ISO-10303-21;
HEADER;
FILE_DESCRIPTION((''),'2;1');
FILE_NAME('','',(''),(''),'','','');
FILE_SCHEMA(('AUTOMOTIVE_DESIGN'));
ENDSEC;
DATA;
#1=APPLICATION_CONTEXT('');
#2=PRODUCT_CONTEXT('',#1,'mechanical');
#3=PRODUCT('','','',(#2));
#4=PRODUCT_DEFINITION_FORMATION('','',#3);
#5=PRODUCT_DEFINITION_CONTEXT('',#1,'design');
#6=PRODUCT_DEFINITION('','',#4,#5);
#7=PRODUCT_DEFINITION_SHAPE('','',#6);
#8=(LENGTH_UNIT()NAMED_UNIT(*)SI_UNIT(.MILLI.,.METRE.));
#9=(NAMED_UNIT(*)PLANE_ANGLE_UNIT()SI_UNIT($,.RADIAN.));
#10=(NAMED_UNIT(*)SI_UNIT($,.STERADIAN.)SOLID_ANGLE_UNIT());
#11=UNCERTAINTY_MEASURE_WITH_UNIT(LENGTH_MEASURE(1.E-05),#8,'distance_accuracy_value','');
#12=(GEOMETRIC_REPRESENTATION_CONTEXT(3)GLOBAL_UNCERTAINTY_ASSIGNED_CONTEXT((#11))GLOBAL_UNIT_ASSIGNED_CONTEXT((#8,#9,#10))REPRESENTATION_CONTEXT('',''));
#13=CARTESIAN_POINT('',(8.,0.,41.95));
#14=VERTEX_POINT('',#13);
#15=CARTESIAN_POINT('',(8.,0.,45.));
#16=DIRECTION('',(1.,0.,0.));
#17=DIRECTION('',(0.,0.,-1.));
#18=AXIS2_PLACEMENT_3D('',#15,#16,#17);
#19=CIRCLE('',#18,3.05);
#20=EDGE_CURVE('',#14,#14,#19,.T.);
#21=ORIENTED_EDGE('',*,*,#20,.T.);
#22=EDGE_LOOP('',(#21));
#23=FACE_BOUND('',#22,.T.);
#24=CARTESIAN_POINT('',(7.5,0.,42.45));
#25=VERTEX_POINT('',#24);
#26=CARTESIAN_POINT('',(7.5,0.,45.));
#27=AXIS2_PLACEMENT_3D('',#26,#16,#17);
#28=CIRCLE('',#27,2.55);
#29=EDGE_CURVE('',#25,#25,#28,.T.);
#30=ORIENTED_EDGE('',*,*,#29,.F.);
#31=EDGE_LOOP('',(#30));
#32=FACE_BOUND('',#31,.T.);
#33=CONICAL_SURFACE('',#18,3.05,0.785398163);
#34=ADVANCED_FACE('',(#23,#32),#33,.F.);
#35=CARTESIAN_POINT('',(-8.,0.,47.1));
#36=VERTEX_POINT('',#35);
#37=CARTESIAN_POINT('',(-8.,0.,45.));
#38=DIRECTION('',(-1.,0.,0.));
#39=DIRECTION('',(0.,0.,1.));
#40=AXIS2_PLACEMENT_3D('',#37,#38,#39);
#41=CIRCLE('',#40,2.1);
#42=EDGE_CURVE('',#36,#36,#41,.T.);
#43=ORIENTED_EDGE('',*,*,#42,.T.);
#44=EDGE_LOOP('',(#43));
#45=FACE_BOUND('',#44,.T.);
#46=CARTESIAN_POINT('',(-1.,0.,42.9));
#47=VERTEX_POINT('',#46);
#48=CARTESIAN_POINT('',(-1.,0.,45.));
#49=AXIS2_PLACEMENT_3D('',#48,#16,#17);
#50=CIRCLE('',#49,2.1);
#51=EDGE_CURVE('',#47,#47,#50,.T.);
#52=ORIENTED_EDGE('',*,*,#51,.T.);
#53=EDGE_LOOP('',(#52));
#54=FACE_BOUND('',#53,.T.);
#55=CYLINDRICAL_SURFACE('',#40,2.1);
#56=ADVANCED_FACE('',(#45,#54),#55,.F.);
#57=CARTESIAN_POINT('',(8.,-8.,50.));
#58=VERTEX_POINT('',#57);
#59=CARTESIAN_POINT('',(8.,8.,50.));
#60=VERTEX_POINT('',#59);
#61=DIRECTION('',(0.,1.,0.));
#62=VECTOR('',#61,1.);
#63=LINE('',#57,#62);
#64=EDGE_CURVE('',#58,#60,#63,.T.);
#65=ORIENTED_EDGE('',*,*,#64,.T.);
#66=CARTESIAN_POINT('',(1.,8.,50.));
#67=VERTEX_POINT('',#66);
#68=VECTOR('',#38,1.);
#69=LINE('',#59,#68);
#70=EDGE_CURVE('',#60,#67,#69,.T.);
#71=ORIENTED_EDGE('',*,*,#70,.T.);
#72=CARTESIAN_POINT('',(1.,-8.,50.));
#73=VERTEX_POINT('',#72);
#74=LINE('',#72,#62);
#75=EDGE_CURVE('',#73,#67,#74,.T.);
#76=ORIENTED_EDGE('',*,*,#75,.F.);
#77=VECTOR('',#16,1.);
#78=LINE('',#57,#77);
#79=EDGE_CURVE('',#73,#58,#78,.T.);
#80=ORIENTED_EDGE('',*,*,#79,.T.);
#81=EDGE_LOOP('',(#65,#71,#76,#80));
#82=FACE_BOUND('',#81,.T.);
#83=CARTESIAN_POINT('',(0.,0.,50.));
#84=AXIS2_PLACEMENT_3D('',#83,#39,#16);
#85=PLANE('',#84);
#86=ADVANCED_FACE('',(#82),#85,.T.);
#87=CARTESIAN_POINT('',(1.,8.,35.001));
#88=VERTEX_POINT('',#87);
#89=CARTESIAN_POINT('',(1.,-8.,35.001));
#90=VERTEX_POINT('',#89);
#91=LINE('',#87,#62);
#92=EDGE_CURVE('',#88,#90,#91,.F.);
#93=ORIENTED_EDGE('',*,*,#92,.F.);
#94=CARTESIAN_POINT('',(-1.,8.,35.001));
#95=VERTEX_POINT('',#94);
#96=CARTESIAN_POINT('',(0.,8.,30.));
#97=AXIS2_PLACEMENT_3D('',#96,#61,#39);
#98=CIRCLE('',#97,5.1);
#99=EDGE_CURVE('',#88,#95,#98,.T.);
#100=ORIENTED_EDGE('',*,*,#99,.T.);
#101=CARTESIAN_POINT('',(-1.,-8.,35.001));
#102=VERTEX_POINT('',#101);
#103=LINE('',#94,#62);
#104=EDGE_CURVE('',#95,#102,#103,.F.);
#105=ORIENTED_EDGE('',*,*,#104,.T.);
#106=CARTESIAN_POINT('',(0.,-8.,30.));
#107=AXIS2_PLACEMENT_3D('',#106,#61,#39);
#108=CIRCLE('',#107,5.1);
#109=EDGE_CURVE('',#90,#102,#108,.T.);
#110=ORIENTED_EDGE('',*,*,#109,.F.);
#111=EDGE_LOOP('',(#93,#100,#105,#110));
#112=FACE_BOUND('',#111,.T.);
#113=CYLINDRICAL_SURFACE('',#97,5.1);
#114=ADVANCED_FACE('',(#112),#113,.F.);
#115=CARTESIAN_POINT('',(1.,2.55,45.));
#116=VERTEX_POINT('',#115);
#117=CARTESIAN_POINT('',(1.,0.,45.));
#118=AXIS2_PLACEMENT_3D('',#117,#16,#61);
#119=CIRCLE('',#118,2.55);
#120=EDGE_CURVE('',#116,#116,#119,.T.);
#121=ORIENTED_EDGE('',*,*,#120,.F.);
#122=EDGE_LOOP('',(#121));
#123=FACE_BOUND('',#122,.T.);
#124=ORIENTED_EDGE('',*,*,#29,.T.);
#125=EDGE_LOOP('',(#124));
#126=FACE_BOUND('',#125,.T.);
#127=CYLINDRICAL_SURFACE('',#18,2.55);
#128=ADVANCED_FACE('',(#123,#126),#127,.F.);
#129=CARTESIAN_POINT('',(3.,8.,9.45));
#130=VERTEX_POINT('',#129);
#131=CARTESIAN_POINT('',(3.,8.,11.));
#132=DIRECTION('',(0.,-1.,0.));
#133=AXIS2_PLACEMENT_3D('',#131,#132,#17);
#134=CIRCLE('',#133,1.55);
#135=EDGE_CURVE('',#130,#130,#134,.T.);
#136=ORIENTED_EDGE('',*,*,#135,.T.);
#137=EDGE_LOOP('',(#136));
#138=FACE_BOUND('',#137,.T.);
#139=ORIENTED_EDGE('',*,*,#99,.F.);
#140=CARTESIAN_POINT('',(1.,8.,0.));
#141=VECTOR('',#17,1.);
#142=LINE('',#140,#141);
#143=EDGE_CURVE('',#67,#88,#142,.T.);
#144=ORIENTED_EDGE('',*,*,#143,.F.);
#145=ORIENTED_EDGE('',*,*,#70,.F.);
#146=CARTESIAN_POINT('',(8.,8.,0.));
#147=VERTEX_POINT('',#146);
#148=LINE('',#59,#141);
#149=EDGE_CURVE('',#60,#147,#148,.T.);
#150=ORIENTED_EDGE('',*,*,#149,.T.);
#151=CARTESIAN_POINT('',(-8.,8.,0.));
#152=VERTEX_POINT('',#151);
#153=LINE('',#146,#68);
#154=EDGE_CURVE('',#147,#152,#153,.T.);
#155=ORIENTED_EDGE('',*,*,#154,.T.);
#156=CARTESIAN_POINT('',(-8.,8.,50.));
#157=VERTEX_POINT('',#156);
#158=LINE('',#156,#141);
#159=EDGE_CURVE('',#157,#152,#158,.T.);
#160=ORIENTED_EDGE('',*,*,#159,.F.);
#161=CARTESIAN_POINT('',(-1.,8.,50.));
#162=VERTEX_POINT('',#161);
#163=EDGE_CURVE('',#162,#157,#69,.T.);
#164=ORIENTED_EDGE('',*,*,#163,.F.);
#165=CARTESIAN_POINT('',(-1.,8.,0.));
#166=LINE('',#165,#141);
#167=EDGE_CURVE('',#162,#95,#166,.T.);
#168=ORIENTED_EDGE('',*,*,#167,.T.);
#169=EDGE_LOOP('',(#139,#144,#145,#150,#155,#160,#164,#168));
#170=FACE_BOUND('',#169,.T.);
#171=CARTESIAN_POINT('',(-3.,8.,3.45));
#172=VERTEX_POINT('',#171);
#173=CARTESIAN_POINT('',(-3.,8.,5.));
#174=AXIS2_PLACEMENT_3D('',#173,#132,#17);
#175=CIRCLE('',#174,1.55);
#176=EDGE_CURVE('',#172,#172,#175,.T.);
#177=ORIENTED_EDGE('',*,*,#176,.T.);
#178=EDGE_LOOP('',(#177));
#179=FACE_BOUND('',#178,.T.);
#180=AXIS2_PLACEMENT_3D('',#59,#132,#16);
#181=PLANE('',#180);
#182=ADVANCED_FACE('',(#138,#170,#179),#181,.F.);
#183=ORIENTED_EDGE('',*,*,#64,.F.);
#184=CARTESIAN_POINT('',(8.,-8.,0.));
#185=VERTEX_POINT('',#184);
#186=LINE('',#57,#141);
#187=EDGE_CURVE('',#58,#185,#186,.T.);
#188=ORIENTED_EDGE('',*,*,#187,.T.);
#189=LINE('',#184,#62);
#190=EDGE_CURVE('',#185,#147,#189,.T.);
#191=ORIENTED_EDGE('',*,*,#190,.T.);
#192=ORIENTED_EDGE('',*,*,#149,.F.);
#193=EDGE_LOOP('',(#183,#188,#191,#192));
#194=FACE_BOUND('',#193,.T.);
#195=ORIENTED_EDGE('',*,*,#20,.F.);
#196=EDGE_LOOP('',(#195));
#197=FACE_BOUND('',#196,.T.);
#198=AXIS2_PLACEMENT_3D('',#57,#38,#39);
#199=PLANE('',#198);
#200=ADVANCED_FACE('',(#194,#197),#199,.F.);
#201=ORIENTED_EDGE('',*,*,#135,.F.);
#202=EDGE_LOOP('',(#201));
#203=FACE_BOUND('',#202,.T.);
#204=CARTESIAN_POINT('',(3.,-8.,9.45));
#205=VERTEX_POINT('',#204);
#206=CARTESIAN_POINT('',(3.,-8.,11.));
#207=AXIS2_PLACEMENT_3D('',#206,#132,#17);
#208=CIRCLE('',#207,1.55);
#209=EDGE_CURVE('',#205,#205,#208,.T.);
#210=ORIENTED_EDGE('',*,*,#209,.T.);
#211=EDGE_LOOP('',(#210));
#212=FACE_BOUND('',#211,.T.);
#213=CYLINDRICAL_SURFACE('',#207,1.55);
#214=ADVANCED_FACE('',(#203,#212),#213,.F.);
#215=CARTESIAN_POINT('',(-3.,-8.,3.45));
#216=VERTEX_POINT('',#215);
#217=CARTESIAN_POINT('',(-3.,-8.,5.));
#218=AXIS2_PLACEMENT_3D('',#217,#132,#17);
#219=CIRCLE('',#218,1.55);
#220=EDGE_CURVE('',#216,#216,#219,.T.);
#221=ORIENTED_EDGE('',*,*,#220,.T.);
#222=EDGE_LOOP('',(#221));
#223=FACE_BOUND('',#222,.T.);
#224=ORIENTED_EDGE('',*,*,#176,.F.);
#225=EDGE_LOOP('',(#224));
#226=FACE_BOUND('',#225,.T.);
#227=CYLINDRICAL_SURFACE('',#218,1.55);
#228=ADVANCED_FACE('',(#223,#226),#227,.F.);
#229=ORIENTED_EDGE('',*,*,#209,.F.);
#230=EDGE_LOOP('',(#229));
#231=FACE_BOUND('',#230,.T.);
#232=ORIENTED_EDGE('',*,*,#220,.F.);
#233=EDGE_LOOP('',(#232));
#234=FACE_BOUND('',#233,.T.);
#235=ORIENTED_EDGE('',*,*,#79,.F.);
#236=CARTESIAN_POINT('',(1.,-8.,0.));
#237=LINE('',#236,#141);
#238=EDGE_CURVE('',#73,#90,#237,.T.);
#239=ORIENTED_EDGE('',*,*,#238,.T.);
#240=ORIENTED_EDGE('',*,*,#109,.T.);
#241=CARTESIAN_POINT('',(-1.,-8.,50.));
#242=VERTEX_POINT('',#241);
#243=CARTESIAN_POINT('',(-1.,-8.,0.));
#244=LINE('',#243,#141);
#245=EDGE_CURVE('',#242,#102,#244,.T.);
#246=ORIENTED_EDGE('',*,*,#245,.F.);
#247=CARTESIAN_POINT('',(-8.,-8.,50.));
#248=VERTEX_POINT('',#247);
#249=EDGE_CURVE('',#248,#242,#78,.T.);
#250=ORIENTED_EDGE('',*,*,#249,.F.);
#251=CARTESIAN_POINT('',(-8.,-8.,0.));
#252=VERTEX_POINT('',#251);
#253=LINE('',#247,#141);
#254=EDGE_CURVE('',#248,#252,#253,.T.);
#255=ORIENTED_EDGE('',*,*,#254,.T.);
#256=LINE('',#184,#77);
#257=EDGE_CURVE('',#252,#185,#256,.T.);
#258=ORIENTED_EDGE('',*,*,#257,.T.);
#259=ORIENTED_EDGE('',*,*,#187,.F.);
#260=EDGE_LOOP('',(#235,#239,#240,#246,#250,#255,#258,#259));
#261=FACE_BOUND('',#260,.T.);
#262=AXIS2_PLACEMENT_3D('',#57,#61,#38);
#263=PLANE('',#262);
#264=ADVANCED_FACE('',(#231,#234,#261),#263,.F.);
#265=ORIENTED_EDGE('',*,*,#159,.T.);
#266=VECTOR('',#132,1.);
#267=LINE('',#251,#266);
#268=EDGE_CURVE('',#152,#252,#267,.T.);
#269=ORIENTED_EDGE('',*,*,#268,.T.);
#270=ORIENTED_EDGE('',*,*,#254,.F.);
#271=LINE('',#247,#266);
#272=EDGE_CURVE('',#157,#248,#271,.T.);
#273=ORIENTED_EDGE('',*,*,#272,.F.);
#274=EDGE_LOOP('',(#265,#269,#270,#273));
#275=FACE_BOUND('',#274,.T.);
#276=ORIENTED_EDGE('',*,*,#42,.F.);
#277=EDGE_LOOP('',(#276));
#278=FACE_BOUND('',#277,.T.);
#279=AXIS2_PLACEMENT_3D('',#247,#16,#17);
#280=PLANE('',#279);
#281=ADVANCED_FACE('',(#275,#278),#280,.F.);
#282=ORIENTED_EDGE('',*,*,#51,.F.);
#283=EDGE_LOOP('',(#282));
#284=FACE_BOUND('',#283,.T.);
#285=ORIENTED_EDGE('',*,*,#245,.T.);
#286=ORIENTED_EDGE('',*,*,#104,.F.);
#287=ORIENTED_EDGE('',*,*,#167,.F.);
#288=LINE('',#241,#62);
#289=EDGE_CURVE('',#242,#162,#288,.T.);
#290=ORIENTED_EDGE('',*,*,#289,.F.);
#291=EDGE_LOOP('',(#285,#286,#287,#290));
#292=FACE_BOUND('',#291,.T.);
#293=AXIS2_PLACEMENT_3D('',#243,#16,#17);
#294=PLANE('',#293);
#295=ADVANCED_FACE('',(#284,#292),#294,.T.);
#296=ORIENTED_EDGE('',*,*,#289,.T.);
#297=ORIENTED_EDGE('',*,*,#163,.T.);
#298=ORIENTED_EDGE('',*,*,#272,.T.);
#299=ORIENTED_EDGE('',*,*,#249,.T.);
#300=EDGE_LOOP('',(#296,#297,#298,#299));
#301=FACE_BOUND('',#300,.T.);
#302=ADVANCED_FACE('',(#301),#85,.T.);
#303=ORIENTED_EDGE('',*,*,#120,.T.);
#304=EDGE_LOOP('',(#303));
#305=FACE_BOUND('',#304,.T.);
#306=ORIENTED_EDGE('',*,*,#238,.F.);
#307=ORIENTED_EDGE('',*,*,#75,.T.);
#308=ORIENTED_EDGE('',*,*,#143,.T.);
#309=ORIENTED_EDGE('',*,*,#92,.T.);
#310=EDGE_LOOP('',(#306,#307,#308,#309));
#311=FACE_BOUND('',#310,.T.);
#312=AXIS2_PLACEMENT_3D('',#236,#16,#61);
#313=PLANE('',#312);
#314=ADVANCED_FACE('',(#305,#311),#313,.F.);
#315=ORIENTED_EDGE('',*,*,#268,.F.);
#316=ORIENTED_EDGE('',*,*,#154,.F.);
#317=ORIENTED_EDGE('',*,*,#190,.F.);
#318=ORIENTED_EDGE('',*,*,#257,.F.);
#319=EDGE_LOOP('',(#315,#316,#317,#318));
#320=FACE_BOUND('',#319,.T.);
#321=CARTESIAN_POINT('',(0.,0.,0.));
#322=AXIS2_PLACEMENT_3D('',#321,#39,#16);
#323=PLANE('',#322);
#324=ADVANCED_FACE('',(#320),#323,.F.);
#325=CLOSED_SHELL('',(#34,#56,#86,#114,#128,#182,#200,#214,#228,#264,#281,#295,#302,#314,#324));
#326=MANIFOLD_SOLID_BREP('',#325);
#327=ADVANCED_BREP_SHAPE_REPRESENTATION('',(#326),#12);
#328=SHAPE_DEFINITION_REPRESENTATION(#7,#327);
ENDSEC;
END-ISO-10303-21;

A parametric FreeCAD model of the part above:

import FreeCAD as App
import Part
import Sketcher
from FreeCAD import Vector
Q = App.Units.Quantity

doc = App.newDocument("Part")
body = doc.addObject("PartDesign::Body", "Body")

sketch1 = body.newObject("Sketcher::SketchObject", "Sketch")
sketch1.AttachmentSupport = (doc.getObject("XY_Plane"), [""])
sketch1.MapMode = "FlatFace"
sketch1.addGeometry([
    Part.LineSegment(Vector(-8, 8, 0), Vector(-8, -8, 0)),
    Part.LineSegment(Vector(-8, -8, 0), Vector(8, -8, 0)),
    Part.LineSegment(Vector(8, -8, 0), Vector(8, 8, 0)),
    Part.LineSegment(Vector(8, 8, 0), Vector(-8, 8, 0)),
], False)
sketch1.addConstraint([
    Sketcher.Constraint("Coincident", 0, 2, 1, 1),
    Sketcher.Constraint("Coincident", 1, 2, 2, 1),
    Sketcher.Constraint("Coincident", 2, 2, 3, 1),
    Sketcher.Constraint("Coincident", 3, 2, 0, 1),
    Sketcher.Constraint("Vertical", 0),
    Sketcher.Constraint("Horizontal", 1),
    Sketcher.Constraint("Vertical", 2),
    Sketcher.Constraint("Horizontal", 3),
    Sketcher.Constraint("Symmetric", 0, 2, 2, 2, -1, 1),
    Sketcher.Constraint("Equal", 3, 0),
    Sketcher.Constraint("DistanceX", 1, 1, 1, 2, Q("16 mm")),
])
pad1 = body.newObject("PartDesign::Pad", "Pad")
pad1.Profile = sketch1
pad1.Length = 50

sketch2 = body.newObject("Sketcher::SketchObject", "Sketch001")
sketch2.AttachmentSupport = (doc.getObject("XZ_Plane"), [""])
sketch2.MapMode = "FlatFace"
sketch2.AttachmentOffset = App.Placement(Vector(0, 0, -8), App.Rotation())
sketch2.addGeometry([
    Part.LineSegment(Vector(-1, 34, 0), Vector(-1, 50, 0)),
    Part.LineSegment(Vector(-1, 50, 0), Vector(1, 50, 0)),
    Part.LineSegment(Vector(1, 50, 0), Vector(1, 34, 0)),
    Part.LineSegment(Vector(1, 34, 0), Vector(-1, 34, 0)),
], False)
sketch2.addConstraint([
    Sketcher.Constraint("Coincident", 0, 2, 1, 1),
    Sketcher.Constraint("Coincident", 1, 2, 2, 1),
    Sketcher.Constraint("Coincident", 2, 2, 3, 1),
    Sketcher.Constraint("Coincident", 3, 2, 0, 1),
    Sketcher.Constraint("Vertical", 0),
    Sketcher.Constraint("Horizontal", 1),
    Sketcher.Constraint("Vertical", 2),
    Sketcher.Constraint("Horizontal", 3),
    Sketcher.Constraint("DistanceX", 1, 1, 1, 2, Q("2 mm")),
    Sketcher.Constraint("DistanceY", 0, 1, 0, 2, Q("16 mm")),
    Sketcher.Constraint("DistanceX", 0, 2, -1, 1, Q("1 mm")),
    Sketcher.Constraint("DistanceY", -1, 1, 0, 2, Q("50 mm")),
])
pocket1 = body.newObject("PartDesign::Pocket", "Pocket")
pocket1.Profile = sketch2
pocket1.Type = "ThroughAll"
pocket1.Reversed = True

sketch3 = body.newObject("Sketcher::SketchObject", "Sketch002")
sketch3.AttachmentSupport = (doc.getObject("YZ_Plane"), [""])
sketch3.MapMode = "FlatFace"
sketch3.AttachmentOffset = App.Placement(Vector(0, 0, 8), App.Rotation())
sketch3.addGeometry(Part.Circle(Vector(0, 45, 0), Vector(0, 0, 1), 2.5), False)
sketch3.addConstraint([
    Sketcher.Constraint("PointOnObject", 0, 3, -2),
    Sketcher.Constraint("Diameter", 0, Q("5.1 mm")),
    Sketcher.Constraint("DistanceY", -1, 1, 0, 3, Q("45 mm")),
])
doc.recompute()
hole = body.newObject("PartDesign::Hole", "Hole")
hole.Profile = sketch3
hole.ThreadType = "None"
hole.Diameter = 5.1
hole.DepthType = "Dimension"
hole.Depth = 7.5
hole.DrillPoint = "Angled"
hole.DrillPointAngle = 135
hole.HoleCutType = "Countersink"
hole.HoleCutDiameter = 6.1
hole.HoleCutCountersinkAngle = 90

sketch4 = body.newObject("Sketcher::SketchObject", "Sketch003")
sketch4.AttachmentSupport = (doc.getObject("YZ_Plane"), [""])
sketch4.MapMode = "FlatFace"
sketch4.AttachmentOffset = App.Placement(Vector(0, 0, -8), App.Rotation())
sketch4.addGeometry(Part.Circle(Vector(0, 45, 0), Vector(0, 0, 1), 2.1), False)
sketch4.addConstraint([
    Sketcher.Constraint("PointOnObject", 0, 3, -2),
    Sketcher.Constraint("Diameter", 0, Q("4.2 mm")),
    Sketcher.Constraint("DistanceY", -1, 1, 0, 3, Q("45 mm")),
])
doc.recompute()
hole2 = body.newObject("PartDesign::Hole", "Hole001")
hole2.Profile = sketch4
hole2.ThreadType = "None"
hole2.Diameter = 4.2
hole2.DepthType = "Dimension"
hole2.Depth = 7.638193
hole2.DrillPoint = "Angled"
hole2.DrillPointAngle = 118
hole2.Reversed = True

sketch5 = body.newObject("Sketcher::SketchObject", "Sketch004")
sketch5.AttachmentSupport = (doc.getObject("XZ_Plane"), [""])
sketch5.MapMode = "FlatFace"
sketch5.AttachmentOffset = App.Placement(Vector(0, 0, 8), App.Rotation())
sketch5.addGeometry([
    Part.Circle(Vector(-3, 5, 0), Vector(0, 0, 1), 1.6),
    Part.Circle(Vector(3, 11, 0), Vector(0, 0, 1), 1.6),
], False)
sketch5.addConstraint([
    Sketcher.Constraint("Equal", 0, 1),
    Sketcher.Constraint("Diameter", 0, Q("3.1 mm")),
    Sketcher.Constraint("DistanceX", 0, 3, -1, 1, Q("3 mm")),
    Sketcher.Constraint("DistanceY", -1, 1, 0, 3, Q("5 mm")),
    Sketcher.Constraint("DistanceX", -1, 1, 1, 3, Q("3 mm")),
    Sketcher.Constraint("DistanceY", -1, 1, 1, 3, Q("11 mm")),
])
doc.recompute()
hole3 = body.newObject("PartDesign::Hole", "Hole002")
hole3.Profile = sketch5
hole3.ThreadType = "None"
hole3.Diameter = 3.1
hole3.DepthType = "ThroughAll"

sketch6 = body.newObject("Sketcher::SketchObject", "Sketch005")
sketch6.AttachmentSupport = (doc.getObject("XZ_Plane"), [""])
sketch6.MapMode = "FlatFace"
sketch6.AttachmentOffset = App.Placement(Vector(0, 0, -8), App.Rotation())
sketch6.addGeometry(Part.Circle(Vector(0, 30, 0), Vector(0, 0, 1), 5), False)
sketch6.addConstraint([
    Sketcher.Constraint("PointOnObject", 0, 3, -2),
    Sketcher.Constraint("Diameter", 0, Q("10.2 mm")),
    Sketcher.Constraint("DistanceY", -1, 1, 0, 3, Q("30 mm")),
])
doc.recompute()
hole4 = body.newObject("PartDesign::Hole", "Hole003")
hole4.Profile = sketch6
hole4.ThreadType = "None"
hole4.Diameter = 10.2
hole4.DepthType = "ThroughAll"
hole4.Reversed = True

doc.recompute()
